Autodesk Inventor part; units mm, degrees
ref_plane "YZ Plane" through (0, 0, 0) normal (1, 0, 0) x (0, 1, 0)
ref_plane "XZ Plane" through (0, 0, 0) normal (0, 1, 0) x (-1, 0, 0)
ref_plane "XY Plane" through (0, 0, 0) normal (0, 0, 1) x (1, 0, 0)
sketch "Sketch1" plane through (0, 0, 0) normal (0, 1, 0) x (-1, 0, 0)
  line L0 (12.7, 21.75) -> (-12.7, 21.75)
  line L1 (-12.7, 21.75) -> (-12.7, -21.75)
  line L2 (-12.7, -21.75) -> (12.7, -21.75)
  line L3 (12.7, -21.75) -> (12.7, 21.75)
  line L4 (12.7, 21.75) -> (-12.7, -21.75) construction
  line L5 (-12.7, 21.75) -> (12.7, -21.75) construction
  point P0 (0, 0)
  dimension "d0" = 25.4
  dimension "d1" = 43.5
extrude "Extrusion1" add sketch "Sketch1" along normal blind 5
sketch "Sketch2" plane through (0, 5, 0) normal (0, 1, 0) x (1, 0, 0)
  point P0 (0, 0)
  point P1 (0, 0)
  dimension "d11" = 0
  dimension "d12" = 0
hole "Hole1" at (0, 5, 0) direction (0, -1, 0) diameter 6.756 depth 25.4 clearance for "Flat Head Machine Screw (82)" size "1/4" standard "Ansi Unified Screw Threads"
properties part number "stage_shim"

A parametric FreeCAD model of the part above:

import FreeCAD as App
import Part
import Sketcher

V = App.Vector
Q = App.Units.Quantity

doc = App.newDocument("Part")
body = doc.addObject("PartDesign::Body", "Body")

sketch1 = doc.addObject("Sketcher::SketchObject", "Sketch")
body.addObject(sketch1)
sketch1.AttachmentSupport = (doc.XZ_Plane, [""])
sketch1.MapMode = "FlatFace"
sketch1.addGeometry(Part.LineSegment(V(-13, -22, 0), V(-13, 22, 0)), False)
sketch1.addGeometry(Part.LineSegment(V(-13, 22, 0), V(13, 22, 0)), False)
sketch1.addGeometry(Part.LineSegment(V(13, 22, 0), V(13, -22, 0)), False)
sketch1.addGeometry(Part.LineSegment(V(13, -22, 0), V(-13, -22, 0)), False)
sketch1.addConstraint(Sketcher.Constraint("Coincident", 0, 2, 1, 1))
sketch1.addConstraint(Sketcher.Constraint("Coincident", 1, 2, 2, 1))
sketch1.addConstraint(Sketcher.Constraint("Coincident", 2, 2, 3, 1))
sketch1.addConstraint(Sketcher.Constraint("Coincident", 3, 2, 0, 1))
sketch1.addConstraint(Sketcher.Constraint("Vertical", 0))
sketch1.addConstraint(Sketcher.Constraint("Horizontal", 1))
sketch1.addConstraint(Sketcher.Constraint("Vertical", 2))
sketch1.addConstraint(Sketcher.Constraint("Horizontal", 3))
sketch1.addConstraint(Sketcher.Constraint("Symmetric", 0, 2, 2, 2, -1, 1))
sketch1.addConstraint(Sketcher.Constraint("DistanceX", 1, 1, 1, 2, Q("25.4 mm")))
sketch1.addConstraint(Sketcher.Constraint("DistanceY", 0, 1, 0, 2, Q("43.5 mm")))
pad1 = doc.addObject("PartDesign::Pad", "Pad")
body.addObject(pad1)
pad1.Profile = sketch1
pad1.Length = 5
pad1.Reversed = True

sketch2 = doc.addObject("Sketcher::SketchObject", "Sketch001")
body.addObject(sketch2)
sketch2.AttachmentSupport = (doc.XZ_Plane, [""])
sketch2.MapMode = "FlatFace"
sketch2.AttachmentOffset = App.Placement(V(0, 0, -5), App.Rotation())
sketch2.addGeometry(Part.Circle(V(0, 0, 0), V(0, 0, 1), 3.4), False)
sketch2.addConstraint(Sketcher.Constraint("Coincident", 0, 3, -1, 1))
sketch2.addConstraint(Sketcher.Constraint("Diameter", 0, Q("6.756 mm")))
doc.recompute()
hole = doc.addObject("PartDesign::Hole", "Hole")
body.addObject(hole)
hole.Profile = sketch2
hole.ThreadType = "None"
hole.Diameter = 6.756
hole.DepthType = "Dimension"
hole.Depth = 25.4
hole.DrillPoint = "Flat"
hole.Reversed = True

doc.recompute()
